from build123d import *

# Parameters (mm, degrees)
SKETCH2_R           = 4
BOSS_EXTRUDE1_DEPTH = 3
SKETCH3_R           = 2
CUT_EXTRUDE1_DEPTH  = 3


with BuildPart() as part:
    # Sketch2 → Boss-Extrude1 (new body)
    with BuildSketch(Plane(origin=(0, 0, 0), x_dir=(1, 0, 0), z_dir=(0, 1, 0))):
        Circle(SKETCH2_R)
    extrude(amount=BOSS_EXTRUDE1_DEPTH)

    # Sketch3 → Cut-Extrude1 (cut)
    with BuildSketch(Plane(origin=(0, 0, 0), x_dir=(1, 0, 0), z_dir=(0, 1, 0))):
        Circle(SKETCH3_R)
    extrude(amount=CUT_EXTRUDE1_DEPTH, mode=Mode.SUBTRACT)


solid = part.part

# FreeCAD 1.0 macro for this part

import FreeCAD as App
import Part
import Sketcher

V = App.Vector

doc = App.newDocument("Part")
body = doc.addObject("PartDesign::Body", "Body")

sketch1 = doc.addObject("Sketcher::SketchObject", "Sketch")
body.addObject(sketch1)
sketch1.AttachmentSupport = (doc.XZ_Plane, [""])
sketch1.MapMode = "FlatFace"
sketch1.addGeometry(Part.Circle(V(0, 0, 0), V(0, 0, 1), 4), False)
sketch1.addConstraint(Sketcher.Constraint("Coincident", 0, 3, -1, 1))
sketch1.addConstraint(Sketcher.Constraint("Diameter", 0, 8.0))
pad1 = doc.addObject("PartDesign::Pad", "Pad")
body.addObject(pad1)
pad1.Profile = sketch1
pad1.Length = 3
pad1.Reversed = True

sketch2 = doc.addObject("Sketcher::SketchObject", "Sketch001")
body.addObject(sketch2)
sketch2.AttachmentSupport = (doc.XZ_Plane, [""])
sketch2.MapMode = "FlatFace"
sketch2.addGeometry(Part.Circle(V(0, 0, 0), V(0, 0, 1), 2), False)
sketch2.addConstraint(Sketcher.Constraint("Coincident", 0, 3, -1, 1))
sketch2.addConstraint(Sketcher.Constraint("Diameter", 0, 4.0))
pocket1 = doc.addObject("PartDesign::Pocket", "Pocket")
body.addObject(pocket1)
pocket1.Profile = sketch2
pocket1.Length = 3

doc.recompute()
